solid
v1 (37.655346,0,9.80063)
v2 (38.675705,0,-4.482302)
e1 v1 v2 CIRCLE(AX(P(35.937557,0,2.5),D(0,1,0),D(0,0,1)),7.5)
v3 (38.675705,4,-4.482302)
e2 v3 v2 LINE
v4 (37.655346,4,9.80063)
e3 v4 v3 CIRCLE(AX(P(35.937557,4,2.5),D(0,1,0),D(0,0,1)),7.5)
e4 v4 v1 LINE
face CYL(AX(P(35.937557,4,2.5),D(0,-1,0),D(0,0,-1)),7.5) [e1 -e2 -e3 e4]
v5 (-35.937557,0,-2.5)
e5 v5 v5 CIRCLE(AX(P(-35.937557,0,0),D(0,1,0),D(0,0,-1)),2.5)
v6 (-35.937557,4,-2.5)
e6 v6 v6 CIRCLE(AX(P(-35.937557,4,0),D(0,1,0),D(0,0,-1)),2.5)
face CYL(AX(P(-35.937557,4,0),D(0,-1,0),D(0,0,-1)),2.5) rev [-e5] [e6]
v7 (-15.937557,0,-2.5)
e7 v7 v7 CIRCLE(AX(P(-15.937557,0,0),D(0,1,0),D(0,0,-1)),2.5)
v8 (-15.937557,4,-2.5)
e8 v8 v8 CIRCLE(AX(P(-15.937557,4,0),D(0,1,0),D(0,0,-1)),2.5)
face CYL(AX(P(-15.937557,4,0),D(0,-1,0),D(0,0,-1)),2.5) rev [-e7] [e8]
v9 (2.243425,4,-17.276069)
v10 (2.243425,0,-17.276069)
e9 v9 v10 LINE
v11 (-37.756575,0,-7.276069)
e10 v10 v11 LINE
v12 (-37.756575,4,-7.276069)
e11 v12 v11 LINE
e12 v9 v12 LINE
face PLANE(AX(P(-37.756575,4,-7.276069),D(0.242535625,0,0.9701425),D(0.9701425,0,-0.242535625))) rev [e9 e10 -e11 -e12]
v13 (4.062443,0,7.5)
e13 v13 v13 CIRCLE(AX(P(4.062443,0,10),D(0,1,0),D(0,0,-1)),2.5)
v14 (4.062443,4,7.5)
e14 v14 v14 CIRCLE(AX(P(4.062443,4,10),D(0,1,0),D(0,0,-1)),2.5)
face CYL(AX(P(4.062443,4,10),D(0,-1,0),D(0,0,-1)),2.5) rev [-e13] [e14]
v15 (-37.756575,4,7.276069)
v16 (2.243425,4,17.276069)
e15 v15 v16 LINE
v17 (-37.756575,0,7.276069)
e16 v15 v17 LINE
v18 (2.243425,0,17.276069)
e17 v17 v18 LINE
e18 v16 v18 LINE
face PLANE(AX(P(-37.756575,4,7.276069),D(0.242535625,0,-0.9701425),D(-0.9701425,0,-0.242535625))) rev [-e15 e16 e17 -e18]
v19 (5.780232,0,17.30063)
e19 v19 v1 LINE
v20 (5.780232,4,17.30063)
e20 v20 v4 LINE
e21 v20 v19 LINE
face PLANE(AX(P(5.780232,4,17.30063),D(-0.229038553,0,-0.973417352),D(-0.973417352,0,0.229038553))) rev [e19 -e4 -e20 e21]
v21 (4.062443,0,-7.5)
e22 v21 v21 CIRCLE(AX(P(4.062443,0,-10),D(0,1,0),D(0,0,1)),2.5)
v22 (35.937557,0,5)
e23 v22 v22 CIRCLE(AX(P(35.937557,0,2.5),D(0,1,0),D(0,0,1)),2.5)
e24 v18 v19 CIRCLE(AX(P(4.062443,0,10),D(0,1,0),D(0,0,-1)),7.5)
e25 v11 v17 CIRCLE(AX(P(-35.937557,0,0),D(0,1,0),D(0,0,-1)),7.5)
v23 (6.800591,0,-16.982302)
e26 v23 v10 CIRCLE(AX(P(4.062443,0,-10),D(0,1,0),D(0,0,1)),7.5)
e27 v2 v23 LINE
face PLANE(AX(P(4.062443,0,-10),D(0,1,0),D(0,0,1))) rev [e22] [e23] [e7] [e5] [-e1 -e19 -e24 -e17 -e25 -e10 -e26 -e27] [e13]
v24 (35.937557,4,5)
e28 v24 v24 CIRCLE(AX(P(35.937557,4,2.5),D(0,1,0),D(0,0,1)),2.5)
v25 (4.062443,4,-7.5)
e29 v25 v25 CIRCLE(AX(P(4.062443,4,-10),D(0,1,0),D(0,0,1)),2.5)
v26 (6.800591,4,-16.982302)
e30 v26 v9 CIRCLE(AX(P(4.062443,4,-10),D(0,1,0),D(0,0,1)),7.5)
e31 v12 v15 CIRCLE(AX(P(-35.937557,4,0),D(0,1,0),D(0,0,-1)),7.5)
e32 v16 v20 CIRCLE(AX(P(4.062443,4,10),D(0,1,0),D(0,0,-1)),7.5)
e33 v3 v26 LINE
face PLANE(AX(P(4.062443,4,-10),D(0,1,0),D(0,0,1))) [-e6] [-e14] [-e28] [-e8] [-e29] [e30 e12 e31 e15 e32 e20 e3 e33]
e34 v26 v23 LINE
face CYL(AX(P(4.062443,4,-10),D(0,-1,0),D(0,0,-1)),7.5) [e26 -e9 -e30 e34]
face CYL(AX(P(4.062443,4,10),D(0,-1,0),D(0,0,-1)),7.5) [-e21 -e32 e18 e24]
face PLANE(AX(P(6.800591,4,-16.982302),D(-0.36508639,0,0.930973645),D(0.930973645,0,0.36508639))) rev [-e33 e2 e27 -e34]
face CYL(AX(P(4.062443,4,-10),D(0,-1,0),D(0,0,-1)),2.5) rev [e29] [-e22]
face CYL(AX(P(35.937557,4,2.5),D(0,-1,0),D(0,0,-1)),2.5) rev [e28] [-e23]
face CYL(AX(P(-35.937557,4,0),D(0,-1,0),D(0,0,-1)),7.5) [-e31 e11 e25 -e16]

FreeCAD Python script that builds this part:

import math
import FreeCAD as App
import Part
import Sketcher
Q = App.Units.Quantity

doc = App.newDocument("Part")
body = doc.addObject("PartDesign::Body", "Body")

# Sketch on XZ plane
sketch1 = body.newObject("Sketcher::SketchObject", "Sketch")
sketch1.AttachmentSupport = (doc.getObject("XZ_Plane"), [""])
sketch1.MapMode = "FlatFace"
sketch1.addGeometry([
    Part.LineSegment(App.Vector(2.2, -17.3, 0), App.Vector(-37.8, -7.3, 0)),  # 0
    Part.ArcOfCircle(Part.Circle(App.Vector(-35.9, 0, 0), App.Vector(0, 0, 1), 7.5), math.radians(104), math.radians(256)),  # 1
    Part.LineSegment(App.Vector(-37.8, 7.3, 0), App.Vector(2.2, 17.3, 0)),  # 2
    Part.ArcOfCircle(Part.Circle(App.Vector(4.1, 10, 0), App.Vector(0, 0, 1), 7.5), math.radians(77), math.radians(104)),  # 3
    Part.LineSegment(App.Vector(5.8, 17.3, 0), App.Vector(37.7, 9.8, 0)),  # 4
    Part.ArcOfCircle(Part.Circle(App.Vector(35.9, 2.5, 0), App.Vector(0, 0, 1), 7.5), math.radians(-69), math.radians(77)),  # 5
    Part.LineSegment(App.Vector(38.7, -4.5, 0), App.Vector(6.8, -17, 0)),  # 6
    Part.ArcOfCircle(Part.Circle(App.Vector(4.1, -10, 0), App.Vector(0, 0, 1), 7.5), math.radians(-104), math.radians(-69)),  # 7
    Part.Circle(App.Vector(4.1, 10, 0), App.Vector(0, 0, 1), 2.5),  # 8
    Part.Circle(App.Vector(35.9, 2.5, 0), App.Vector(0, 0, 1), 2.5),  # 9
    Part.Circle(App.Vector(4.1, -10, 0), App.Vector(0, 0, 1), 2.5),  # 10
    Part.Circle(App.Vector(-15.9, 0, 0), App.Vector(0, 0, 1), 2.5),  # 11
    Part.Circle(App.Vector(-35.9, 0, 0), App.Vector(0, 0, 1), 2.5),  # 12
], False)
sketch1.addConstraint([
    Sketcher.Constraint("Tangent", 0, 2, 1, 2),
    Sketcher.Constraint("Tangent", 1, 1, 2, 1),
    Sketcher.Constraint("Tangent", 2, 2, 3, 2),
    Sketcher.Constraint("Tangent", 3, 1, 4, 1),
    Sketcher.Constraint("Tangent", 4, 2, 5, 2),
    Sketcher.Constraint("Tangent", 5, 1, 6, 1),
    Sketcher.Constraint("Tangent", 6, 2, 7, 2),
    Sketcher.Constraint("Tangent", 7, 1, 0, 1),
    Sketcher.Constraint("Coincident", 8, 3, 3, 3),
    Sketcher.Constraint("Coincident", 9, 3, 5, 3),
    Sketcher.Constraint("Coincident", 10, 3, 7, 3),
    Sketcher.Constraint("Coincident", 12, 3, 1, 3),
    Sketcher.Constraint("Equal", 1, 3),
    Sketcher.Constraint("Equal", 3, 5),
    Sketcher.Constraint("Equal", 5, 7),
    Sketcher.Constraint("Equal", 8, 9),
    Sketcher.Constraint("Equal", 9, 10),
    Sketcher.Constraint("Equal", 10, 11),
    Sketcher.Constraint("Equal", 11, 12),
    Sketcher.Constraint("Symmetric", 3, 3, 7, 3, -1),
    Sketcher.Constraint("PointOnObject", 1, 3, -1),
    Sketcher.Constraint("PointOnObject", 11, 3, -1),
    Sketcher.Constraint("Diameter", 8, Q("5 mm")),
    Sketcher.Constraint("Radius", 1, Q("7.5 mm")),
    Sketcher.Constraint("DistanceY", -1, 1, 3, 3, Q("10 mm")),
    Sketcher.Constraint("DistanceX", 1, 3, 3, 3, Q("40 mm")),
    Sketcher.Constraint("DistanceX", 1, 3, 11, 3, Q("20 mm")),
    Sketcher.Constraint("DistanceY", -1, 1, 5, 3, Q("2.5 mm")),
    Sketcher.Constraint("Distance", 4, Q("32.745579 mm")),
    Sketcher.Constraint("DistanceX", -1, 1, 3, 1, Q("5.780232 mm")),
])
pad1 = body.newObject("PartDesign::Pad", "Pad")
pad1.Profile = sketch1
pad1.Length = 4
pad1.Reversed = True

doc.recompute()
